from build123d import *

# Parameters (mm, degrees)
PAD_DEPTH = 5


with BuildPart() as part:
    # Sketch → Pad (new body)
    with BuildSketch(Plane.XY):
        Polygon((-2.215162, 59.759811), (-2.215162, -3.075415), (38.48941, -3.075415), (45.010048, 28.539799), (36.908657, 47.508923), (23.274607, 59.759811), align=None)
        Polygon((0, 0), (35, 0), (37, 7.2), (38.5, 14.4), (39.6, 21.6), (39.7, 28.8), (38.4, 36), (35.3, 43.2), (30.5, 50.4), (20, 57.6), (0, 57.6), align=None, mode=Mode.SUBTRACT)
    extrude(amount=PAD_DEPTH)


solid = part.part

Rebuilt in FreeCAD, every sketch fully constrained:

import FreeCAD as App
import Part
import Sketcher
from FreeCAD import Vector


def add_polygon(sketch, points):
    """Adds a closed chain of lines whose ends are joined by coincident constraints."""
    first, n = sketch.GeometryCount, len(points)
    for a, b in zip(points, points[1:] + points[:1]):
        sketch.addGeometry(Part.LineSegment(App.Vector(*a, 0), App.Vector(*b, 0)), False)
    for i in range(n):
        sketch.addConstraint(Sketcher.Constraint("Coincident", first + i, 2, first + (i + 1) % n, 1))

doc = App.newDocument("Part")
body = doc.addObject("PartDesign::Body", "Body")

# Sketch on XY plane
sketch1 = body.newObject("Sketcher::SketchObject", "Sketch")
sketch1.AttachmentSupport = (doc.getObject("XY_Plane"), [""])
sketch1.MapMode = "FlatFace"
add_polygon(sketch1, [(-2.215162, 59.759811), (-2.215162, -3.075415), (38.48941, -3.075415), (45.010048, 28.539799), (36.908657, 47.508923), (23.274607, 59.759811)])  # lines 0-5
add_polygon(sketch1, [(35, 0), (0, 0), (0, 57.6), (20, 57.6), (30.5, 50.4), (35.3, 43.2), (38.4, 36), (39.7, 28.8), (39.6, 21.6), (38.5, 14.4), (37, 7.2)])  # lines 6-16
sketch1.addConstraint(Sketcher.Constraint("Vertical", 0))
sketch1.addConstraint(Sketcher.Constraint("Horizontal", 1))
sketch1.addConstraint(Sketcher.Constraint("Horizontal", 5))
sketch1.addConstraint(Sketcher.Constraint("Horizontal", 6))
sketch1.addConstraint(Sketcher.Constraint("Vertical", 7))
sketch1.addConstraint(Sketcher.Constraint("Horizontal", 8))
sketch1.addConstraint(Sketcher.Constraint("Coincident", 6, 2, -1, 1))
sketch1.addConstraint(Sketcher.Constraint("DistanceX", 6, 2, 6, 1, 35.0))
sketch1.addConstraint(Sketcher.Constraint("DistanceX", 8, 1, 8, 2, 20.0))
sketch1.addConstraint(Sketcher.Constraint("DistanceY", 7, 1, 7, 2, 57.6))
sketch1.addConstraint(Sketcher.Constraint("DistanceY", -1, 1, 11, 2, 36.0))
sketch1.addConstraint(Sketcher.Constraint("DistanceX", -1, 1, 15, 2, 37.0))
sketch1.addConstraint(Sketcher.Constraint("DistanceX", -1, 1, 9, 2, 30.5))
sketch1.addConstraint(Sketcher.Constraint("DistanceY", -1, 1, 9, 2, 50.4))
sketch1.addConstraint(Sketcher.Constraint("DistanceX", -1, 1, 10, 2, 35.3))
sketch1.addConstraint(Sketcher.Constraint("DistanceY", -1, 1, 10, 2, 43.2))
sketch1.addConstraint(Sketcher.Constraint("DistanceX", -1, 1, 11, 2, 38.4))
sketch1.addConstraint(Sketcher.Constraint("DistanceX", -1, 1, 12, 2, 39.7))
sketch1.addConstraint(Sketcher.Constraint("DistanceY", -1, 1, 12, 2, 28.8))
sketch1.addConstraint(Sketcher.Constraint("DistanceX", -1, 1, 13, 2, 39.6))
sketch1.addConstraint(Sketcher.Constraint("DistanceY", -1, 1, 13, 2, 21.6))
sketch1.addConstraint(Sketcher.Constraint("DistanceX", -1, 1, 14, 2, 38.5))
sketch1.addConstraint(Sketcher.Constraint("DistanceY", -1, 1, 14, 2, 14.4))
sketch1.addConstraint(Sketcher.Constraint("DistanceY", -1, 1, 15, 2, 7.2))
sketch1.addConstraint(Sketcher.Constraint("DistanceX", 5, 2, 5, 1, 25.489769))
sketch1.addConstraint(Sketcher.Constraint("DistanceY", -1, 1, 2, 2, 28.539799))
sketch1.addConstraint(Sketcher.Constraint("Distance", 2, 32.280652))
sketch1.addConstraint(Sketcher.Constraint("DistanceX", 1, 1, 1, 2, 40.704572))
sketch1.addConstraint(Sketcher.Constraint("DistanceY", 0, 2, 0, 1, 62.835226))
sketch1.addConstraint(Sketcher.Constraint("DistanceX", 0, 2, -1, 1, 2.215162))
sketch1.addConstraint(Sketcher.Constraint("DistanceY", -1, 1, 4, 2, 59.759811))
sketch1.addConstraint(Sketcher.Constraint("DistanceX", 3, 2, 2, 2, 8.101391))
sketch1.addConstraint(Sketcher.Constraint("DistanceY", 1, 2, 3, 2, 50.584338))
pad1 = body.newObject("PartDesign::Pad", "Pad")
pad1.Profile = sketch1
pad1.Length = 5

doc.recompute()
